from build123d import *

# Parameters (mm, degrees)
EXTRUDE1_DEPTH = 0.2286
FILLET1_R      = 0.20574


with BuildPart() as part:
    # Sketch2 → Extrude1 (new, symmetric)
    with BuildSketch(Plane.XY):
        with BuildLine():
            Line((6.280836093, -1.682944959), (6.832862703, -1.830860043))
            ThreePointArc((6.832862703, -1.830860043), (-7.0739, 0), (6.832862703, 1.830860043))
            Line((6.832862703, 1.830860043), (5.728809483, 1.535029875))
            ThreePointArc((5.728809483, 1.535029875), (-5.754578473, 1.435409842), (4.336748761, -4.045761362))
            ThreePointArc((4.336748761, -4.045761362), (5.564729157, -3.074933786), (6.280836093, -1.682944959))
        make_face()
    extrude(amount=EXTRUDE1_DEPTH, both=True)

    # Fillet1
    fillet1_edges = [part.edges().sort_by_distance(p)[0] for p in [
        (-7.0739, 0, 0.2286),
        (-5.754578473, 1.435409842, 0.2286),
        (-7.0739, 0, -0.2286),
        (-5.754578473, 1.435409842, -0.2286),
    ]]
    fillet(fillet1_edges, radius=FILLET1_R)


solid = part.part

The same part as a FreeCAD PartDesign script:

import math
import FreeCAD as App
import Part
import Sketcher

V = App.Vector
Q = App.Units.Quantity


def edges_at(feature, points):
    """Names of the edges that pass closest to the given points."""
    edges = feature.Shape.Edges
    near = lambda p: min(range(len(edges)), key=lambda i: edges[i].distToShape(Part.Vertex(*p))[0])
    return sorted({f"Edge{near(p) + 1}" for p in points})

doc = App.newDocument("Part")
params = doc.addObject("Spreadsheet::Sheet", "Params")
for row, (alias, value) in enumerate([
    ("pad1_length", "0.018 in"),
    ("fillet_radius", "0.0081 in"),
], start=1):
    params.set(f"A{row}", alias)
    params.set(f"B{row}", "=" + value)
    params.setAlias(f"B{row}", alias)

body = doc.addObject("PartDesign::Body", "Body")

# Sketch on XY plane
sketch1 = body.newObject("Sketcher::SketchObject", "Sketch")
sketch1.AttachmentSupport = (doc.getObject("XY_Plane"), [""])
sketch1.MapMode = "FlatFace"
sketch1.addGeometry(Part.LineSegment(V(6.8, -1.8, 0), V(6.3, -1.7, 0)), False)
sketch1.addGeometry(Part.ArcOfCircle(Part.Circle(V(2.7, -0.7, 0), V(0, 0, 1), 3.7), math.radians(-64), math.radians(-15)), False)
sketch1.addGeometry(Part.ArcOfCircle(Part.Circle(V(0, 0, 0), V(0, 0, 1), 5.9), math.radians(15), math.radians(317)), False)
sketch1.addGeometry(Part.LineSegment(V(5.7, 1.5, 0), V(6.8, 1.8, 0)), False)
sketch1.addGeometry(Part.ArcOfCircle(Part.Circle(V(0, 0, 0), V(0, 0, 1), 7.1), math.radians(15), math.radians(345)), False)
sketch1.addConstraint(Sketcher.Constraint("Coincident", 0, 2, 1, 2))
sketch1.addConstraint(Sketcher.Constraint("Coincident", 1, 1, 2, 2))
sketch1.addConstraint(Sketcher.Constraint("Coincident", 2, 1, 3, 1))
sketch1.addConstraint(Sketcher.Constraint("Coincident", 3, 2, 4, 1))
sketch1.addConstraint(Sketcher.Constraint("Coincident", 4, 2, 0, 1))
sketch1.addConstraint(Sketcher.Constraint("Coincident", 2, 3, -1, 1))
sketch1.addConstraint(Sketcher.Constraint("Coincident", 4, 3, -1, 1))
sketch1.addConstraint(Sketcher.Constraint("Vertical", 3, 2, 4, 2))
sketch1.addConstraint(Sketcher.Constraint("Angle", 0, Q("165 deg")))
sketch1.addConstraint(Sketcher.Constraint("Angle", 3, Q("15 deg")))
sketch1.addConstraint(Sketcher.Constraint("Radius", 2, Q("0.2335 in")))
sketch1.addConstraint(Sketcher.Constraint("Radius", 4, Q("0.2785 in")))
sketch1.addConstraint(Sketcher.Constraint("Radius", 1, Q("3.696739 mm")))
sketch1.addConstraint(Sketcher.Constraint("Distance", 0, Q("0.0225 in")))
sketch1.addConstraint(Sketcher.Constraint("DistanceX", 1, 3, 3, 2, Q("4.122802 mm")))
sketch1.addConstraint(Sketcher.Constraint("DistanceY", 1, 1, 4, 2, Q("2.214901 mm")))
pad1 = body.newObject("PartDesign::Pad", "Pad")
pad1.Profile = sketch1
pad1.setExpression("Length", "Params.pad1_length")
pad1.Midplane = True
doc.recompute()

fillet = body.newObject("PartDesign::Fillet", "Fillet")
fillet.Base = (pad1, edges_at(pad1, [
    (-7.074, 0, 0.229),
    (-5.755, 1.435, 0.229),
    (-7.074, 0, -0.229),
    (-5.755, 1.435, -0.229),
]))
fillet.setExpression("Radius", "Params.fillet_radius")

doc.recompute()
